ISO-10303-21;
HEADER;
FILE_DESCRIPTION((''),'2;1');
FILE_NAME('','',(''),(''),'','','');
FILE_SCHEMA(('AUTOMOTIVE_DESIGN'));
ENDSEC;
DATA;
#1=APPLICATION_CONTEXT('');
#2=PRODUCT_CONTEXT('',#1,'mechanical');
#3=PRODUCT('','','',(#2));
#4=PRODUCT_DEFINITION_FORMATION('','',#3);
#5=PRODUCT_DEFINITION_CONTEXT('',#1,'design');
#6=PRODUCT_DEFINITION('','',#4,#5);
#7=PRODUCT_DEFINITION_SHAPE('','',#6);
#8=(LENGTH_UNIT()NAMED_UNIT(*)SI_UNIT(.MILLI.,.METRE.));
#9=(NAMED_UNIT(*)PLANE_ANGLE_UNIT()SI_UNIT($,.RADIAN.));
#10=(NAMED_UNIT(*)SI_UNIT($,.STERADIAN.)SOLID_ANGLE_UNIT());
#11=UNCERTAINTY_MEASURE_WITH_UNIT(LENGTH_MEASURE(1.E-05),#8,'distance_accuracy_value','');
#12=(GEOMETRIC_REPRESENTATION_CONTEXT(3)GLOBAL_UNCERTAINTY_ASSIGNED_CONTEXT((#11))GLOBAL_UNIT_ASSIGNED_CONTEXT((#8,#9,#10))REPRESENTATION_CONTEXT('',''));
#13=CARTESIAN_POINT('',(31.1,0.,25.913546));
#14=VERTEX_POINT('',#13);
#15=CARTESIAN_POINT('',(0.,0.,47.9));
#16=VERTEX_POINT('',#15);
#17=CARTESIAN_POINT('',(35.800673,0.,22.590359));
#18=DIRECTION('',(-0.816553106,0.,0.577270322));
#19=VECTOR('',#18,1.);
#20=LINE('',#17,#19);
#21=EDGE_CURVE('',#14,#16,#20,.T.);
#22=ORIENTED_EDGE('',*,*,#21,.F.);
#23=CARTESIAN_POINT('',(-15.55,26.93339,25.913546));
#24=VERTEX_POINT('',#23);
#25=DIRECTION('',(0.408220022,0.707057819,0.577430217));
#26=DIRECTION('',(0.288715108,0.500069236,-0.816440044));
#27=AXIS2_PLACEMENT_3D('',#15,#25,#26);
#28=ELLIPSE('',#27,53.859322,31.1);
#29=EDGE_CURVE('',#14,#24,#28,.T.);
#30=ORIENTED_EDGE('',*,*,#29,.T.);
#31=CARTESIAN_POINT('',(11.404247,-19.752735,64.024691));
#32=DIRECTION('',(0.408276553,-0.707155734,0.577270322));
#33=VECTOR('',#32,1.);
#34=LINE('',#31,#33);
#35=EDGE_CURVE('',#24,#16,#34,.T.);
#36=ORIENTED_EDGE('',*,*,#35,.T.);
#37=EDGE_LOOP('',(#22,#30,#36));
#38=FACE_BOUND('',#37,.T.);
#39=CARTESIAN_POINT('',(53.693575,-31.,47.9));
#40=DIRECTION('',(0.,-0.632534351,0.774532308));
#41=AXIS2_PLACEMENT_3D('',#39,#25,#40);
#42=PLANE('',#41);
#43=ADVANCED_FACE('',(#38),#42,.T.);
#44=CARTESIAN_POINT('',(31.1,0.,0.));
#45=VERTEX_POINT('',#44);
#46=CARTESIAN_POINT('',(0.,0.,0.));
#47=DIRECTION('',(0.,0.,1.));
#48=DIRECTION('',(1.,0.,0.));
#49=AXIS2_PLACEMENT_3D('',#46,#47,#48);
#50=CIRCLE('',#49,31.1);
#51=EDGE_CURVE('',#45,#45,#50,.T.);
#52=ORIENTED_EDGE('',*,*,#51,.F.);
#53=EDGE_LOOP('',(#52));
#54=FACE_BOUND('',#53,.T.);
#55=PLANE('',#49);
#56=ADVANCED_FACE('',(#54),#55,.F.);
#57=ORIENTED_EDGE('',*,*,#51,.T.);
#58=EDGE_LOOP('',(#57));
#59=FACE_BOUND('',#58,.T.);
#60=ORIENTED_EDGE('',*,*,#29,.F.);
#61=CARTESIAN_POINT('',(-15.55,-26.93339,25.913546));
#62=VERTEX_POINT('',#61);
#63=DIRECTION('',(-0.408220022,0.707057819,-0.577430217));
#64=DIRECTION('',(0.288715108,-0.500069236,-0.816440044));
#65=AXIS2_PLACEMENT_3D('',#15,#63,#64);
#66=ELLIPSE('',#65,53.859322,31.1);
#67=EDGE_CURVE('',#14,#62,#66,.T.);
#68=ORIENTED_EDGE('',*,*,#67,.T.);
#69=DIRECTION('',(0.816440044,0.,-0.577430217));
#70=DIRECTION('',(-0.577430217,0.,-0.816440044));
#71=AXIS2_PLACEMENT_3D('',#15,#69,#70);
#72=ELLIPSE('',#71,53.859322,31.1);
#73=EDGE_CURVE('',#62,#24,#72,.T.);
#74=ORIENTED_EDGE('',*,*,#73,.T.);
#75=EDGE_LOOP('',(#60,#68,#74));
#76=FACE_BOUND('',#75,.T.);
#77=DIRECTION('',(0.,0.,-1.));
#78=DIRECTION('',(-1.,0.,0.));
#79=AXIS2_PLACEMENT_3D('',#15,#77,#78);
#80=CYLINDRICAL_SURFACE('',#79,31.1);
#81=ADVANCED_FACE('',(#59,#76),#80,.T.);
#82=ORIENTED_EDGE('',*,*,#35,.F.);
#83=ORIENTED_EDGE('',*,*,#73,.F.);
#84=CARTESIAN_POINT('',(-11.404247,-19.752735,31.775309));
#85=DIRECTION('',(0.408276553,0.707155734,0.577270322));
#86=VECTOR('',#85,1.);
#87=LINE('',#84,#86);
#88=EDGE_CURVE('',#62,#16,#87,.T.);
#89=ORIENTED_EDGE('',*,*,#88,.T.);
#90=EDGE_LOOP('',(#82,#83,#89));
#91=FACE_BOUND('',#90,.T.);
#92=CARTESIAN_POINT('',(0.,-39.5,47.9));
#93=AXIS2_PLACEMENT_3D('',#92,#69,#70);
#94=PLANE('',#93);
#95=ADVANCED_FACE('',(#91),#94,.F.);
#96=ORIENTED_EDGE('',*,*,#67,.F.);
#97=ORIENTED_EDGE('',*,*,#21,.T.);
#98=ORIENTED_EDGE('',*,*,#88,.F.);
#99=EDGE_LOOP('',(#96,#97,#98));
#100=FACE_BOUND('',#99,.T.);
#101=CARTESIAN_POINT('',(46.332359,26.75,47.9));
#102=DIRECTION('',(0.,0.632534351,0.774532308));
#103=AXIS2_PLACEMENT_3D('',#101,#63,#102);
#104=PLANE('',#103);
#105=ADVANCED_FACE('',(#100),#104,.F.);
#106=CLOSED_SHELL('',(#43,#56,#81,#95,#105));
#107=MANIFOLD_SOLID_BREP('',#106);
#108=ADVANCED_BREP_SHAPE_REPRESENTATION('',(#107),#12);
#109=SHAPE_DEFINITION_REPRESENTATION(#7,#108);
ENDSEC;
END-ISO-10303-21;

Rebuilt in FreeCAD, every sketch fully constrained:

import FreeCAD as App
import Part
import Sketcher

V = App.Vector
Q = App.Units.Quantity

doc = App.newDocument("Part")
body = doc.addObject("PartDesign::Body", "Body")

# Sketch on XY plane
sketch1 = body.newObject("Sketcher::SketchObject", "Sketch")
sketch1.AttachmentSupport = (doc.getObject("XY_Plane"), [""])
sketch1.MapMode = "FlatFace"
sketch1.addGeometry(Part.Circle(V(0, 0, 0), V(0, 0, 1), 31), False)
sketch1.addConstraint(Sketcher.Constraint("Coincident", 0, 3, -1, 1))
sketch1.addConstraint(Sketcher.Constraint("Diameter", 0, Q("62.2 mm")))
pad1 = body.newObject("PartDesign::Pad", "Pad")
pad1.Profile = sketch1
pad1.Length = 47.9

# Sketch on XZ plane
sketch2 = body.newObject("Sketcher::SketchObject", "Sketch001")
sketch2.AttachmentSupport = (doc.getObject("XZ_Plane"), [""])
sketch2.MapMode = "FlatFace"
sketch2.addGeometry(Part.LineSegment(V(0, 48, 0), V(-41, -10, 0)), False)
sketch2.addGeometry(Part.LineSegment(V(-41, -10, 0), V(-41, 57, 0)), False)
sketch2.addGeometry(Part.LineSegment(V(-41, 57, 0), V(0, 57, 0)), False)
sketch2.addGeometry(Part.LineSegment(V(0, 57, 0), V(0, 48, 0)), False)
sketch2.addConstraint(Sketcher.Constraint("Coincident", 0, 2, 1, 1))
sketch2.addConstraint(Sketcher.Constraint("Coincident", 1, 2, 2, 1))
sketch2.addConstraint(Sketcher.Constraint("Coincident", 2, 2, 3, 1))
sketch2.addConstraint(Sketcher.Constraint("Coincident", 3, 2, 0, 1))
sketch2.addConstraint(Sketcher.Constraint("Vertical", 1))
sketch2.addConstraint(Sketcher.Constraint("Horizontal", 2))
sketch2.addConstraint(Sketcher.Constraint("Vertical", 3))
sketch2.addConstraint(Sketcher.Constraint("PointOnObject", 2, 2, -2))
sketch2.addConstraint(Sketcher.Constraint("DistanceY", -1, 1, 3, 2, Q("47.9 mm")))
sketch2.addConstraint(Sketcher.Constraint("Angle", 0, Q("-125.27 deg")))
sketch2.addConstraint(Sketcher.Constraint("DistanceY", 1, 1, 1, 2, Q("66.289812 mm")))
sketch2.addConstraint(Sketcher.Constraint("Distance", 0, Q("70.467951 mm")))
pocket1 = body.newObject("PartDesign::Pocket", "Pocket")
pocket1.Profile = sketch2
pocket1.Length = 79
pocket1.Midplane = True

# Sketch on an angled plane
sketch3 = body.newObject("Sketcher::SketchObject", "Sketch002")
sketch3.Placement = App.Placement(V(0, 0, 0), App.Rotation(V(0.5, 0.866025404, 0), V(0, 0, 1), V(0.866025404, -0.5, 0), "ZXY"))
sketch3.addGeometry(Part.LineSegment(V(0, 48, 0), V(101, -94, 0)), False)
sketch3.addGeometry(Part.LineSegment(V(101, -94, 0), V(101, 79, 0)), False)
sketch3.addGeometry(Part.LineSegment(V(101, 79, 0), V(0, 79, 0)), False)
sketch3.addGeometry(Part.LineSegment(V(0, 79, 0), V(0, 48, 0)), False)
sketch3.addConstraint(Sketcher.Constraint("Coincident", 0, 2, 1, 1))
sketch3.addConstraint(Sketcher.Constraint("Coincident", 1, 2, 2, 1))
sketch3.addConstraint(Sketcher.Constraint("Coincident", 2, 2, 3, 1))
sketch3.addConstraint(Sketcher.Constraint("Coincident", 3, 2, 0, 1))
sketch3.addConstraint(Sketcher.Constraint("Vertical", 1))
sketch3.addConstraint(Sketcher.Constraint("Horizontal", 2))
sketch3.addConstraint(Sketcher.Constraint("Vertical", 3))
sketch3.addConstraint(Sketcher.Constraint("PointOnObject", 2, 2, -2))
sketch3.addConstraint(Sketcher.Constraint("DistanceY", -1, 1, 3, 2, Q("47.9 mm")))
sketch3.addConstraint(Sketcher.Constraint("Angle", 0, Q("-54.73 deg")))
sketch3.addConstraint(Sketcher.Constraint("DistanceY", 1, 1, 1, 2, Q("173.57001 mm")))
sketch3.addConstraint(Sketcher.Constraint("DistanceX", 2, 2, 2, 1, Q("100.699347 mm")))
pocket2 = body.newObject("PartDesign::Pocket", "Pocket001")
pocket2.Profile = sketch3
pocket2.Length = 124
pocket2.Midplane = True

# Sketch on an angled plane
sketch4 = body.newObject("Sketcher::SketchObject", "Sketch003")
sketch4.Placement = App.Placement(V(0, 0, 0), App.Rotation(V(0.5, -0.866025404, 0), V(0, 0, 1), V(-0.866025404, -0.5, 0), "ZXY"))
sketch4.addGeometry(Part.LineSegment(V(0, 48, 0), V(46, -17, 0)), False)
sketch4.addGeometry(Part.LineSegment(V(46, -17, 0), V(46, 62, 0)), False)
sketch4.addGeometry(Part.LineSegment(V(46, 62, 0), V(3, 62, 0)), False)
sketch4.addGeometry(Part.LineSegment(V(3, 62, 0), V(0, 48, 0)), False)
sketch4.addConstraint(Sketcher.Constraint("Coincident", 0, 2, 1, 1))
sketch4.addConstraint(Sketcher.Constraint("Coincident", 1, 2, 2, 1))
sketch4.addConstraint(Sketcher.Constraint("Coincident", 2, 2, 3, 1))
sketch4.addConstraint(Sketcher.Constraint("Coincident", 3, 2, 0, 1))
sketch4.addConstraint(Sketcher.Constraint("Vertical", 1))
sketch4.addConstraint(Sketcher.Constraint("Horizontal", 2))
sketch4.addConstraint(Sketcher.Constraint("PointOnObject", 3, 2, -2))
sketch4.addConstraint(Sketcher.Constraint("DistanceY", -1, 1, 3, 2, Q("47.9 mm")))
sketch4.addConstraint(Sketcher.Constraint("Angle", 0, Q("-54.73 deg")))
sketch4.addConstraint(Sketcher.Constraint("DistanceX", 2, 2, 2, 1, Q("43.005619 mm")))
sketch4.addConstraint(Sketcher.Constraint("DistanceY", 1, 1, 1, 2, Q("78.78366 mm")))
sketch4.addConstraint(Sketcher.Constraint("DistanceX", -1, 1, 0, 2, Q("45.690289 mm")))
pocket3 = body.newObject("PartDesign::Pocket", "Pocket002")
pocket3.Profile = sketch4
pocket3.Length = 107
pocket3.Midplane = True

doc.recompute()
